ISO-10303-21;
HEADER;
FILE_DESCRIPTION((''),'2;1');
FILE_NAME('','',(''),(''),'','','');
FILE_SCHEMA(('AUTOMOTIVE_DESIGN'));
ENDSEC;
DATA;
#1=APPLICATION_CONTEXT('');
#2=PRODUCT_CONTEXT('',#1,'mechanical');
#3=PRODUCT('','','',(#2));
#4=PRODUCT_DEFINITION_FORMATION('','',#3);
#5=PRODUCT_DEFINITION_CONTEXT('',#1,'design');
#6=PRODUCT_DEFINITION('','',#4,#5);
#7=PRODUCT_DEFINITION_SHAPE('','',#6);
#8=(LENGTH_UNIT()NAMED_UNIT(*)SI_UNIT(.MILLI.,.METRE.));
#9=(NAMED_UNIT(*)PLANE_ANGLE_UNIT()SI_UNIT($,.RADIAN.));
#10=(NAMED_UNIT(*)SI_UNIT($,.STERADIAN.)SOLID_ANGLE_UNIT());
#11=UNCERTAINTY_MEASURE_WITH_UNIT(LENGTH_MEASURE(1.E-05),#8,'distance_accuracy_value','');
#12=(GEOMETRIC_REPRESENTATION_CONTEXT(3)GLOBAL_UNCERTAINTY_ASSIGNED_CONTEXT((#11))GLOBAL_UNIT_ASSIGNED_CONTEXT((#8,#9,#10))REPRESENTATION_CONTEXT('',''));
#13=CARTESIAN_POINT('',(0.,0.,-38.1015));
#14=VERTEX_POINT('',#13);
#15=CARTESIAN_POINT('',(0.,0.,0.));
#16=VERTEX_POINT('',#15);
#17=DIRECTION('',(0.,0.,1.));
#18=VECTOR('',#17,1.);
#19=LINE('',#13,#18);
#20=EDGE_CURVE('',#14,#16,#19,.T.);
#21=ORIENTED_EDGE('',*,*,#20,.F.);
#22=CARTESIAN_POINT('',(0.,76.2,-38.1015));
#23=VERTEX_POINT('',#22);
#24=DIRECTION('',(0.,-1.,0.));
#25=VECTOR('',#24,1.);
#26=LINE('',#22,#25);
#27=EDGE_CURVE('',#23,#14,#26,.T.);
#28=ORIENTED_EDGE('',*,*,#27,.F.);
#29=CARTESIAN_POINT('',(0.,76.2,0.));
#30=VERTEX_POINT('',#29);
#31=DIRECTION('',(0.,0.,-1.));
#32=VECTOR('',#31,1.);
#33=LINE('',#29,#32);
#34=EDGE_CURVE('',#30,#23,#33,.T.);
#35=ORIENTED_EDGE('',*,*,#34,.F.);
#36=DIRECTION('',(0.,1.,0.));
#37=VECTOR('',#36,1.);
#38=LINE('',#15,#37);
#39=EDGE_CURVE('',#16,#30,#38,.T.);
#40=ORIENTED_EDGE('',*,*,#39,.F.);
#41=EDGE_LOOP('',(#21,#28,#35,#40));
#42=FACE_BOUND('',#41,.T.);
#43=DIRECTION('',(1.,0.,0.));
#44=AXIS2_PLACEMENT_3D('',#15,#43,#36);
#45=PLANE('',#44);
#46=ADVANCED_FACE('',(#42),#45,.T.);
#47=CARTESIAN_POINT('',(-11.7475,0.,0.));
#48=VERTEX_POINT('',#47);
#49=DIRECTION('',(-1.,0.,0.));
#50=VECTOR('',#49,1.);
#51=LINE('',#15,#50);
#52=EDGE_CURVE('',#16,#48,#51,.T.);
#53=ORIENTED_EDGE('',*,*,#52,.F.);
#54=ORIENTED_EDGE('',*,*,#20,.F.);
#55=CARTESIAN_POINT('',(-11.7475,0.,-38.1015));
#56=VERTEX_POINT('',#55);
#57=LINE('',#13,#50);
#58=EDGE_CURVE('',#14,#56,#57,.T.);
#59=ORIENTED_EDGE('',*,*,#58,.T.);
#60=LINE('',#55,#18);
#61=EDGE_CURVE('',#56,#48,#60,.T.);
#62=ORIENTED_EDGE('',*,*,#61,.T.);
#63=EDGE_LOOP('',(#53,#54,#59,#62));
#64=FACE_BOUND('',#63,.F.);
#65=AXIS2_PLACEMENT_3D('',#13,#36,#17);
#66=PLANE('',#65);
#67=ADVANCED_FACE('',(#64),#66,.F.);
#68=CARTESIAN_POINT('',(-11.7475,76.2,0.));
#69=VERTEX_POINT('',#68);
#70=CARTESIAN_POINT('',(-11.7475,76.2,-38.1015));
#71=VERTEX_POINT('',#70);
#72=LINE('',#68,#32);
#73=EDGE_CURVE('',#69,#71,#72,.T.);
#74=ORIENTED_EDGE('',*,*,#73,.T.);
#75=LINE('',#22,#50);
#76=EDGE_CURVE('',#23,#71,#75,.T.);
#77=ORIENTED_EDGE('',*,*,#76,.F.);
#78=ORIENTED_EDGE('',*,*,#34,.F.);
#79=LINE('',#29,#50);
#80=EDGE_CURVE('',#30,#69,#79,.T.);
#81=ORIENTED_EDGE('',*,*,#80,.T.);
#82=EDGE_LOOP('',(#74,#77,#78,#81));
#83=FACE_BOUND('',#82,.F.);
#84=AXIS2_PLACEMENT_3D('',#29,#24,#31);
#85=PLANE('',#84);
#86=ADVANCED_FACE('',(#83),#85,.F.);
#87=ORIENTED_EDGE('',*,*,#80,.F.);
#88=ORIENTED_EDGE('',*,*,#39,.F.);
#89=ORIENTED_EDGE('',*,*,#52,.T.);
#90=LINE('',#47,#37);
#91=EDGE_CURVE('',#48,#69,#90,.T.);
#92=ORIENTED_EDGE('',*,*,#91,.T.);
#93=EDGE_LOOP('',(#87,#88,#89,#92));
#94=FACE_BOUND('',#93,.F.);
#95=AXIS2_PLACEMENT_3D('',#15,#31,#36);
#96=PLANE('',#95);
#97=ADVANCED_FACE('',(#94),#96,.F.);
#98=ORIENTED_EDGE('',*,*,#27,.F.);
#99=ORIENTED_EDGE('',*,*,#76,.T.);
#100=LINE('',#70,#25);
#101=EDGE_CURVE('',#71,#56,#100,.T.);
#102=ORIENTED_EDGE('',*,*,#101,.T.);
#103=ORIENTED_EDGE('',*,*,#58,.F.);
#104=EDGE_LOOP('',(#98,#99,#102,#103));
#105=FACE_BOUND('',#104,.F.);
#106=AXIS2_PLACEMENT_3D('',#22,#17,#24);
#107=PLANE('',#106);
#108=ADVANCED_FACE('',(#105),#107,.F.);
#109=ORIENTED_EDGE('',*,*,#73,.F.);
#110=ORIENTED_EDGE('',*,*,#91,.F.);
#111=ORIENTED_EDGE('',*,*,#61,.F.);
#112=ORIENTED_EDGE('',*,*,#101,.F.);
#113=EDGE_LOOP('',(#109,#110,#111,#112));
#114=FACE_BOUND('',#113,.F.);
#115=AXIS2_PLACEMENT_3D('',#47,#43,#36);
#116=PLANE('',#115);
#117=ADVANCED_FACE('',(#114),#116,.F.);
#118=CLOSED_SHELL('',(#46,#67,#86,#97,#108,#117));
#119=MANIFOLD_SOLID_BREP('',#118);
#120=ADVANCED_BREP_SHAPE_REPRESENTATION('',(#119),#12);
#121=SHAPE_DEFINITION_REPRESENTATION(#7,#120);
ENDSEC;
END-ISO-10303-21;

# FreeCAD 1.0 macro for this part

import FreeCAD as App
import Part
import Sketcher
from FreeCAD import Vector
Q = App.Units.Quantity

doc = App.newDocument("Part")
body = doc.addObject("PartDesign::Body", "Body")

sketch1 = doc.addObject("Sketcher::SketchObject", "Sketch")
body.addObject(sketch1)
sketch1.AttachmentSupport = (doc.YZ_Plane, [""])
sketch1.MapMode = "FlatFace"
sketch1.addGeometry([
    Part.LineSegment(Vector(76, 0, 0), Vector(0, 0, 0)),
    Part.LineSegment(Vector(0, 0, 0), Vector(0, -38, 0)),
    Part.LineSegment(Vector(0, -38, 0), Vector(76, -38, 0)),
    Part.LineSegment(Vector(76, -38, 0), Vector(76, 0, 0)),
], False)
sketch1.addConstraint([
    Sketcher.Constraint("Coincident", 0, 2, 1, 1),
    Sketcher.Constraint("Coincident", 1, 2, 2, 1),
    Sketcher.Constraint("Coincident", 2, 2, 3, 1),
    Sketcher.Constraint("Coincident", 3, 2, 0, 1),
    Sketcher.Constraint("Horizontal", 0),
    Sketcher.Constraint("Vertical", 1),
    Sketcher.Constraint("Horizontal", 2),
    Sketcher.Constraint("Vertical", 3),
    Sketcher.Constraint("Coincident", 0, 2, -1, 1),
    Sketcher.Constraint("DistanceX", 0, 2, 0, 1, Q("3 in")),
    Sketcher.Constraint("DistanceY", 1, 2, 1, 1, 38.1015),
])
pad1 = doc.addObject("PartDesign::Pad", "Pad")
body.addObject(pad1)
pad1.Profile = sketch1
pad1.Length = Q("0.4625 in")
pad1.Reversed = True

doc.recompute()
